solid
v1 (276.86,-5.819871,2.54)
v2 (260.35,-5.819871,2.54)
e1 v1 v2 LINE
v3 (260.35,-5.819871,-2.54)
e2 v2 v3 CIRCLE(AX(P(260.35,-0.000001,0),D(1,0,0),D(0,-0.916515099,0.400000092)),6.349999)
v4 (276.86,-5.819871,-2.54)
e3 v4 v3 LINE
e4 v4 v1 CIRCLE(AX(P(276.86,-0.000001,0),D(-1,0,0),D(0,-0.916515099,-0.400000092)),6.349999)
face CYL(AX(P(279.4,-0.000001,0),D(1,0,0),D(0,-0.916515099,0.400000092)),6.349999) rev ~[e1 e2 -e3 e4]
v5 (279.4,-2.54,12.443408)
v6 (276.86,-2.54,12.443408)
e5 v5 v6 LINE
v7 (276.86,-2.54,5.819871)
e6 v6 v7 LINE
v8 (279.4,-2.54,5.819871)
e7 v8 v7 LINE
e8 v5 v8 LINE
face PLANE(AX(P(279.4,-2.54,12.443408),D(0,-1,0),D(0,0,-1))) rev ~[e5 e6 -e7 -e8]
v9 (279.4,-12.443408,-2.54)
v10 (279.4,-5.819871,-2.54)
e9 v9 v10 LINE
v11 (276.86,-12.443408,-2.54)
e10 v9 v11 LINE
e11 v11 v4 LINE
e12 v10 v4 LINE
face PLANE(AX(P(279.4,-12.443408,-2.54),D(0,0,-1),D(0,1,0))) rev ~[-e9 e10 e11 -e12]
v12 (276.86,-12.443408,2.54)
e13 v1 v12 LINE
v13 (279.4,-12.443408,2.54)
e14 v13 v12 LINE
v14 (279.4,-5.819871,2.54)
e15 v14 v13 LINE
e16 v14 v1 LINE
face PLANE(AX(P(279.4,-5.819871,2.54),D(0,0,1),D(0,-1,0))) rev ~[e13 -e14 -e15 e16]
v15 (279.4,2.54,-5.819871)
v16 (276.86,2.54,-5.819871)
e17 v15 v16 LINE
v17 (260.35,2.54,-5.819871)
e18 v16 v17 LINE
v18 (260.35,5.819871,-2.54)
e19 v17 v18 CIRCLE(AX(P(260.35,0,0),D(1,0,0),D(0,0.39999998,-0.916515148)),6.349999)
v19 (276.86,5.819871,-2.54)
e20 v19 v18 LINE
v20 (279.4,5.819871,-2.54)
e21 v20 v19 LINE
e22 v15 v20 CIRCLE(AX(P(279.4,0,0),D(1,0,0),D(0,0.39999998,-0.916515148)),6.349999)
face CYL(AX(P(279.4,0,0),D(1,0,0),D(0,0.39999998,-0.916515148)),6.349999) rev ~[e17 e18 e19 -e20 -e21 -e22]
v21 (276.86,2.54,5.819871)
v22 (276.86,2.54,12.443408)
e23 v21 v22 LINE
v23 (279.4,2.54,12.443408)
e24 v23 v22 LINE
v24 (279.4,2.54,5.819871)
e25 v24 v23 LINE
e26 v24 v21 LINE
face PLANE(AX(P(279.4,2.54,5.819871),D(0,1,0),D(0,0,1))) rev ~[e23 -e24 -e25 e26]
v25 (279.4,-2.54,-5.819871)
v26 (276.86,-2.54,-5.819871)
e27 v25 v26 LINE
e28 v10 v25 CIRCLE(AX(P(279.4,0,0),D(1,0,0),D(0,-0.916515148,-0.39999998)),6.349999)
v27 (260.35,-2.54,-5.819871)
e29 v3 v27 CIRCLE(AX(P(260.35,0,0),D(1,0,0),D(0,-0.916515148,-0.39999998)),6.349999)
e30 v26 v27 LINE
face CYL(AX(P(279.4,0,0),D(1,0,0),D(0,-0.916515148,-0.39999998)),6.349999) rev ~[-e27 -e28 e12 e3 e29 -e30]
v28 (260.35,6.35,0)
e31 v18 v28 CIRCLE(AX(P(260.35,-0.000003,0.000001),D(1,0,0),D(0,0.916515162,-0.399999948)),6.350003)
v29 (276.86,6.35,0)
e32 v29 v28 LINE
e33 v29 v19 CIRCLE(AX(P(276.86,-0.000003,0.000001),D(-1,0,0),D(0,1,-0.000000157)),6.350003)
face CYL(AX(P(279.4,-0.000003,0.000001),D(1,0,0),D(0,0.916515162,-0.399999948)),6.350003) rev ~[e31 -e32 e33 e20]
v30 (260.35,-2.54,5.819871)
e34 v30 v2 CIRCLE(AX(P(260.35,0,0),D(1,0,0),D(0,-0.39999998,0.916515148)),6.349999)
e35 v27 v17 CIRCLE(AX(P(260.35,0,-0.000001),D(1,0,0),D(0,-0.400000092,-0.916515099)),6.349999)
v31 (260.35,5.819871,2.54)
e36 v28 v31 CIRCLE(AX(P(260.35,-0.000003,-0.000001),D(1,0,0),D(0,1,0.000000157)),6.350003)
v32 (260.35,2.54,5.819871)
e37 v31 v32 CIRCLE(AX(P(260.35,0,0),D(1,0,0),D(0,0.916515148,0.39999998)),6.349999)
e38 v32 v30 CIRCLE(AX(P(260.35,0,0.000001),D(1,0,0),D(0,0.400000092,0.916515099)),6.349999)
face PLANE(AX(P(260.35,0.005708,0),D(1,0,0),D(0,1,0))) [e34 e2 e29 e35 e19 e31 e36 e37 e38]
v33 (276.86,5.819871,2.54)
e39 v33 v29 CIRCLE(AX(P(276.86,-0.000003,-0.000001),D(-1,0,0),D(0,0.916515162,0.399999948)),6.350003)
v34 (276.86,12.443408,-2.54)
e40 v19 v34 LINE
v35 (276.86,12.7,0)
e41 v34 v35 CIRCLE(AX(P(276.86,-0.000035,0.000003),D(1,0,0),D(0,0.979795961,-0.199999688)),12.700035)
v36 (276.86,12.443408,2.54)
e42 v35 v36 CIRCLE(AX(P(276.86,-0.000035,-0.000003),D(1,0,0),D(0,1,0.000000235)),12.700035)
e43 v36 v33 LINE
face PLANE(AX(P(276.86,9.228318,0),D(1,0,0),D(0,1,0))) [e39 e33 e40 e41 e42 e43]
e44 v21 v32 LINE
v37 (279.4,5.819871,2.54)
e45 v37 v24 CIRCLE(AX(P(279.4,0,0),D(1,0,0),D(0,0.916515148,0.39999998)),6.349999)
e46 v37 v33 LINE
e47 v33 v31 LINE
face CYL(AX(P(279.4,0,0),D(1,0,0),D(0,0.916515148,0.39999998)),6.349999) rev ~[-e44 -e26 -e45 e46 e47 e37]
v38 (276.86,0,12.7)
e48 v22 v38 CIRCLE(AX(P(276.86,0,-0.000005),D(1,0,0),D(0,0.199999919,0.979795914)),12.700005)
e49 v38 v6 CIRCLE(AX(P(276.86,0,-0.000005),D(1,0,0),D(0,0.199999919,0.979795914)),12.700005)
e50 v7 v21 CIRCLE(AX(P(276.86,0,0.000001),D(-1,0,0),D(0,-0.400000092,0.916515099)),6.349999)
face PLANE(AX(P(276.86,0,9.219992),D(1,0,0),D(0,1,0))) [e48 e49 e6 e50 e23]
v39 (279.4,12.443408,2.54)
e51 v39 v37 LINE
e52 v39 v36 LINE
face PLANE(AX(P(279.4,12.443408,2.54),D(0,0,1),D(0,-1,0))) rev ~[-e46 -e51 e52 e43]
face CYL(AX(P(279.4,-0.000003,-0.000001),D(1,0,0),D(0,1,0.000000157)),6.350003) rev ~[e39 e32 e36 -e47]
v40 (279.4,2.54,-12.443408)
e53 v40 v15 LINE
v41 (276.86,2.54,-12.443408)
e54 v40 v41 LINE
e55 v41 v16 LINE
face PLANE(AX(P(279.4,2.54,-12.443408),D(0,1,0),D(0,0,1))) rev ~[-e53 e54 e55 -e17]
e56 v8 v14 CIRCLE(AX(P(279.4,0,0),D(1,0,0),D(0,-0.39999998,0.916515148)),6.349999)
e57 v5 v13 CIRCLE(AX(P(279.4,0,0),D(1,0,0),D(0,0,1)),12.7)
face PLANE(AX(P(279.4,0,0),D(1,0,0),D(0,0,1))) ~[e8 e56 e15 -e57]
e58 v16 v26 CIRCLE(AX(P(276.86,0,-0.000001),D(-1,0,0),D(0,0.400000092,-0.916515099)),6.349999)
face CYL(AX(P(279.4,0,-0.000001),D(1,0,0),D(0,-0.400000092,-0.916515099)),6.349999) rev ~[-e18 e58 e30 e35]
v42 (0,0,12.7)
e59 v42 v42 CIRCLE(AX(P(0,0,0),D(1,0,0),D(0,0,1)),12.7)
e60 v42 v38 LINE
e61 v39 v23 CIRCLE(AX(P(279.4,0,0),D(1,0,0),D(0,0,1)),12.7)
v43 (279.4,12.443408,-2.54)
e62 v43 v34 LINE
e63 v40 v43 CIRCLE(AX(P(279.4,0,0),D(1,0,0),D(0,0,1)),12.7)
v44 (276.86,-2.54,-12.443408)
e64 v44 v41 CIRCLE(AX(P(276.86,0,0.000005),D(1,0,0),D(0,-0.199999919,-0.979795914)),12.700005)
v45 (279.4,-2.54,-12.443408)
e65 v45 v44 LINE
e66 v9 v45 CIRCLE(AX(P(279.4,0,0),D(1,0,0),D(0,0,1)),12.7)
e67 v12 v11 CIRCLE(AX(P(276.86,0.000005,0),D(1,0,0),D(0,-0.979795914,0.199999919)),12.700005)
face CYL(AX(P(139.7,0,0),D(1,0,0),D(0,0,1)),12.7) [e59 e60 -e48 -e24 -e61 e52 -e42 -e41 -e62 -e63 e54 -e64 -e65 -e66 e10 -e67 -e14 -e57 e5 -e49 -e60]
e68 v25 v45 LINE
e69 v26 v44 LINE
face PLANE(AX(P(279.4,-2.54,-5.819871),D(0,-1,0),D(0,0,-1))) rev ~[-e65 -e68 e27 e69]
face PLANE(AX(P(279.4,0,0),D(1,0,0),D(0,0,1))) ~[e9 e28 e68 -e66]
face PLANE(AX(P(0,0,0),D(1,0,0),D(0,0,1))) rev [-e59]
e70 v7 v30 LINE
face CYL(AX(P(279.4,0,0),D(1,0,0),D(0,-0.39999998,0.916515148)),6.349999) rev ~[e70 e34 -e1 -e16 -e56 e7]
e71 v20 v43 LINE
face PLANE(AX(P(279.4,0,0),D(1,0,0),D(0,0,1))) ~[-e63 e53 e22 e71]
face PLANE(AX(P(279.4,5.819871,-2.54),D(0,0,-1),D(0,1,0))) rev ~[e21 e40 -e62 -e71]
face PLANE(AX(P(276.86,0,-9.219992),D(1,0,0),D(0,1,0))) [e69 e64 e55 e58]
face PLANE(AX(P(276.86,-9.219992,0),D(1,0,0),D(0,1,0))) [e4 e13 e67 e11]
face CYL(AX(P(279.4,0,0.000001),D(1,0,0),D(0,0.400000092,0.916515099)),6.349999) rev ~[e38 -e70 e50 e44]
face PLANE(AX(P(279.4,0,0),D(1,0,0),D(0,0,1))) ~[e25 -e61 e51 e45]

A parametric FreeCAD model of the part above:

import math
import FreeCAD as App
import Part
import Sketcher
from FreeCAD import Vector
Q = App.Units.Quantity


def add_polygon(sketch, points):
    """Adds a closed chain of lines whose ends are joined by coincident constraints."""
    first, n = sketch.GeometryCount, len(points)
    for a, b in zip(points, points[1:] + points[:1]):
        sketch.addGeometry(Part.LineSegment(App.Vector(*a, 0), App.Vector(*b, 0)), False)
    for i in range(n):
        sketch.addConstraint(Sketcher.Constraint("Coincident", first + i, 2, first + (i + 1) % n, 1))

doc = App.newDocument("Part")
body = doc.addObject("PartDesign::Body", "Body")

# Sketch on XZ plane
sketch1 = body.newObject("Sketcher::SketchObject", "Sketch")
sketch1.AttachmentSupport = (doc.getObject("XZ_Plane"), [""])
sketch1.MapMode = "FlatFace"
add_polygon(sketch1, [(0, 12.7), (0, 0), (279.4, 0), (279.4, 12.7)])  # lines 0-3
sketch1.addConstraint([
    Sketcher.Constraint("Vertical", 0),
    Sketcher.Constraint("Horizontal", 1),
    Sketcher.Constraint("Vertical", 2),
    Sketcher.Constraint("Horizontal", 3),
    Sketcher.Constraint("Coincident", 0, 2, -1, 1),
    Sketcher.Constraint("DistanceX", 1, 1, 1, 2, Q("11 in")),
    Sketcher.Constraint("DistanceY", 0, 2, 0, 1, Q("0.5 in")),
])
revolution = body.newObject("PartDesign::Revolution", "Revolution")
revolution.Profile = sketch1
revolution.ReferenceAxis = (sketch1, ["H_Axis"])
revolution.Angle = 360

# Sketch on YZ plane
sketch2 = body.newObject("Sketcher::SketchObject", "Sketch001")
sketch2.AttachmentSupport = (doc.getObject("YZ_Plane"), [""])
sketch2.MapMode = "FlatFace"
sketch2.AttachmentOffset = App.Placement(Vector(0, 0, 11 * 25.4), App.Rotation())
sketch2.addGeometry([
    Part.ArcOfCircle(Part.Circle(Vector(-0.000003, 0.000001, 0), Vector(0, 0, 1), 6.350003), math.radians(-23.578175), math.radians(-0.000009)),  # 0
    Part.ArcOfCircle(Part.Circle(Vector(-0.000003, -0.000001, 0), Vector(0, 0, 1), 6.350003), math.radians(0.000009), math.radians(23.578175)),  # 1
    Part.ArcOfCircle(Part.Circle(Vector(0, 0, 0), Vector(0, 0, 1), 6.349999), math.radians(23.578177), math.radians(66.421823)),  # 2
    Part.ArcOfCircle(Part.Circle(Vector(0, 0.000001, 0), Vector(0, 0, 1), 6.349999), math.radians(66.421816), math.radians(113.578184)),  # 3
    Part.ArcOfCircle(Part.Circle(Vector(0, 0, 0), Vector(0, 0, 1), 6.349999), math.radians(113.578177), math.radians(156.421823)),  # 4
    Part.ArcOfCircle(Part.Circle(Vector(-0.000001, 0, 0), Vector(0, 0, 1), 6.349999), math.radians(156.421816), math.radians(203.578184)),  # 5
    Part.ArcOfCircle(Part.Circle(Vector(0, 0, 0), Vector(0, 0, 1), 6.349999), math.radians(-156.421823), math.radians(-113.578177)),  # 6
    Part.ArcOfCircle(Part.Circle(Vector(0, -0.000001, 0), Vector(0, 0, 1), 6.349999), math.radians(-113.578184), math.radians(-66.421816)),  # 7
    Part.ArcOfCircle(Part.Circle(Vector(0, 0, 0), Vector(0, 0, 1), 6.349999), math.radians(-66.421823), math.radians(-23.578177)),  # 8
], False)
sketch2.addConstraint([
    Sketcher.Constraint("Tangent", 0, 2, 1, 1),
    Sketcher.Constraint("Tangent", 1, 2, 2, 1),
    Sketcher.Constraint("Tangent", 2, 2, 3, 1),
    Sketcher.Constraint("Tangent", 3, 2, 4, 1),
    Sketcher.Constraint("Tangent", 4, 2, 5, 1),
    Sketcher.Constraint("Tangent", 5, 2, 6, 1),
    Sketcher.Constraint("Tangent", 6, 2, 7, 1),
    Sketcher.Constraint("Tangent", 7, 2, 8, 1),
    Sketcher.Constraint("Tangent", 8, 2, 0, 1),
    Sketcher.Constraint("Coincident", 0, 3, -1, 1),
    Sketcher.Constraint("Coincident", 2, 3, -1, 1),
    Sketcher.Constraint("Coincident", 4, 3, -1, 1),
    Sketcher.Constraint("Coincident", 6, 3, -1, 1),
    Sketcher.Constraint("PointOnObject", 0, 2, -1),
    Sketcher.Constraint("Horizontal", 2, 2, 3, 2),
    Sketcher.Constraint("Horizontal", 1, 2, 4, 2),
    Sketcher.Constraint("Horizontal", 6, 2, 7, 2),
    Sketcher.Constraint("Horizontal", 5, 2, 8, 2),
    Sketcher.Constraint("Vertical", 4, 2, 5, 2),
    Sketcher.Constraint("Vertical", 3, 2, 6, 2),
    Sketcher.Constraint("Radius", 0, Q("0.2500001 in")),
    Sketcher.Constraint("DistanceY", -1, 1, 1, 2, Q("0.1 in")),
    Sketcher.Constraint("DistanceX", -1, 1, 2, 2, Q("0.1 in")),
])
pocket1 = body.newObject("PartDesign::Pocket", "Pocket")
pocket1.Profile = sketch2
pocket1.Length = Q("0.75 in")

# Sketch on YZ plane
sketch3 = body.newObject("Sketcher::SketchObject", "Sketch002")
sketch3.AttachmentSupport = (doc.getObject("YZ_Plane"), [""])
sketch3.MapMode = "FlatFace"
sketch3.AttachmentOffset = App.Placement(Vector(0, 0, 11 * 25.4), App.Rotation())
sketch3.addGeometry([
    Part.ArcOfCircle(Part.Circle(Vector(-0.000001, 0, 0), Vector(0, 0, 1), 6.349999), math.radians(156.421816), math.radians(203.578184)),  # 0
    Part.LineSegment(Vector(-5.819871, 2.54, 0), Vector(-12.443408, 2.54, 0)),  # 1
    Part.ArcOfCircle(Part.Circle(Vector(0.000005, 0, 0), Vector(0, 0, 1), 12.700005), math.radians(168.463046), math.radians(191.536954)),  # 2
    Part.LineSegment(Vector(-12.443408, -2.54, 0), Vector(-5.819871, -2.54, 0)),  # 3
    Part.ArcOfCircle(Part.Circle(Vector(-0.000003, -0.000001, 0), Vector(0, 0, 1), 6.350003), math.radians(0.000009), math.radians(23.578175)),  # 4
    Part.ArcOfCircle(Part.Circle(Vector(-0.000003, 0.000001, 0), Vector(0, 0, 1), 6.350003), math.radians(-23.578175), math.radians(-0.000009)),  # 5
    Part.LineSegment(Vector(5.819871, -2.54, 0), Vector(12.443408, -2.54, 0)),  # 6
    Part.ArcOfCircle(Part.Circle(Vector(-0.000035, 0.000003, 0), Vector(0, 0, 1), 12.700035), math.radians(-11.536941), math.radians(-0.000013)),  # 7
    Part.ArcOfCircle(Part.Circle(Vector(-0.000035, -0.000003, 0), Vector(0, 0, 1), 12.700035), math.radians(0.000013), math.radians(11.536941)),  # 8
    Part.LineSegment(Vector(12.443408, 2.54, 0), Vector(5.819871, 2.54, 0)),  # 9
    Part.LineSegment(Vector(2.54, -12.443408, 0), Vector(2.54, -5.819871, 0)),  # 10
    Part.ArcOfCircle(Part.Circle(Vector(0, -0.000001, 0), Vector(0, 0, 1), 6.349999), math.radians(-113.578184), math.radians(-66.421816)),  # 11
    Part.LineSegment(Vector(-2.54, -5.819871, 0), Vector(-2.54, -12.443408, 0)),  # 12
    Part.ArcOfCircle(Part.Circle(Vector(0, 0.000005, 0), Vector(0, 0, 1), 12.700005), math.radians(-101.536954), math.radians(-78.463046)),  # 13
    Part.ArcOfCircle(Part.Circle(Vector(0, 0.000001, 0), Vector(0, 0, 1), 6.349999), math.radians(66.421816), math.radians(113.578184)),  # 14
    Part.LineSegment(Vector(2.54, 5.819871, 0), Vector(2.54, 12.443408, 0)),  # 15
    Part.ArcOfCircle(Part.Circle(Vector(0, -0.000005, 0), Vector(0, 0, 1), 12.700005), math.radians(78.463046), math.radians(101.536954)),  # 16
    Part.LineSegment(Vector(-2.54, 12.443408, 0), Vector(-2.54, 5.819871, 0)),  # 17
], False)
sketch3.addConstraint([
    Sketcher.Constraint("Coincident", 0, 1, 1, 1),
    Sketcher.Constraint("Coincident", 1, 2, 2, 1),
    Sketcher.Constraint("Coincident", 2, 2, 3, 1),
    Sketcher.Constraint("Coincident", 3, 2, 0, 2),
    Sketcher.Constraint("Coincident", 4, 1, 5, 2),
    Sketcher.Constraint("Coincident", 5, 1, 6, 1),
    Sketcher.Constraint("Coincident", 6, 2, 7, 1),
    Sketcher.Constraint("Coincident", 7, 2, 8, 1),
    Sketcher.Constraint("Coincident", 8, 2, 9, 1),
    Sketcher.Constraint("Coincident", 9, 2, 4, 2),
    Sketcher.Constraint("Coincident", 10, 2, 11, 2),
    Sketcher.Constraint("Coincident", 11, 1, 12, 1),
    Sketcher.Constraint("Coincident", 12, 2, 13, 1),
    Sketcher.Constraint("Coincident", 13, 2, 10, 1),
    Sketcher.Constraint("Coincident", 14, 1, 15, 1),
    Sketcher.Constraint("Coincident", 15, 2, 16, 1),
    Sketcher.Constraint("Coincident", 16, 2, 17, 1),
    Sketcher.Constraint("Coincident", 17, 2, 14, 2),
    Sketcher.Constraint("Horizontal", 1),
    Sketcher.Constraint("Horizontal", 3),
    Sketcher.Constraint("Horizontal", 6),
    Sketcher.Constraint("Horizontal", 9),
    Sketcher.Constraint("Vertical", 10),
    Sketcher.Constraint("Vertical", 12),
    Sketcher.Constraint("Vertical", 15),
    Sketcher.Constraint("Vertical", 17),
    Sketcher.Constraint("Coincident", 0, 3, -1, 1),
    Sketcher.Constraint("Coincident", 2, 3, -1, 1),
    Sketcher.Constraint("Coincident", 4, 3, -1, 1),
    Sketcher.Constraint("Coincident", 5, 3, -1, 1),
    Sketcher.Constraint("Coincident", 11, 3, -1, 1),
    Sketcher.Constraint("Coincident", 13, 3, -1, 1),
    Sketcher.Constraint("Coincident", 14, 3, -1, 1),
    Sketcher.Constraint("Coincident", 16, 3, -1, 1),
    Sketcher.Constraint("Coincident", 8, 3, 7, 3),
    Sketcher.Constraint("PointOnObject", 4, 1, -1),
    Sketcher.Constraint("PointOnObject", 7, 2, -1),
    Sketcher.Constraint("Radius", 0, Q("0.2499999 in")),
    Sketcher.Constraint("Radius", 4, Q("0.2500001 in")),
    Sketcher.Constraint("Radius", 11, Q("0.2499999 in")),
    Sketcher.Constraint("Radius", 14, Q("0.2499999 in")),
    Sketcher.Constraint("DistanceY", -1, 1, 0, 1, Q("0.1 in")),
    Sketcher.Constraint("DistanceY", 2, 2, -1, 1, Q("0.1 in")),
    Sketcher.Constraint("DistanceY", 5, 1, -1, 1, Q("0.1 in")),
    Sketcher.Constraint("DistanceX", -1, 1, 7, 2, Q("0.5 in")),
    Sketcher.Constraint("DistanceY", -1, 1, 8, 2, Q("0.1 in")),
    Sketcher.Constraint("DistanceX", -1, 1, 10, 2, Q("0.1 in")),
    Sketcher.Constraint("DistanceX", 11, 1, -1, 1, Q("0.1 in")),
    Sketcher.Constraint("DistanceX", -1, 1, 14, 1, Q("0.1 in")),
    Sketcher.Constraint("DistanceX", 16, 2, -1, 1, Q("0.1 in")),
    Sketcher.Constraint("DistanceY", 7, 3, 0, 1, Q("0.0999999 in")),
    Sketcher.Constraint("Radius", 2, Q("12.700005 mm")),
    Sketcher.Constraint("Radius", 7, Q("12.700035 mm")),
    Sketcher.Constraint("Radius", 13, Q("12.700005 mm")),
    Sketcher.Constraint("Radius", 16, Q("12.700005 mm")),
])
pocket2 = body.newObject("PartDesign::Pocket", "Pocket001")
pocket2.Profile = sketch3
pocket2.Length = Q("0.1 in")

doc.recompute()
